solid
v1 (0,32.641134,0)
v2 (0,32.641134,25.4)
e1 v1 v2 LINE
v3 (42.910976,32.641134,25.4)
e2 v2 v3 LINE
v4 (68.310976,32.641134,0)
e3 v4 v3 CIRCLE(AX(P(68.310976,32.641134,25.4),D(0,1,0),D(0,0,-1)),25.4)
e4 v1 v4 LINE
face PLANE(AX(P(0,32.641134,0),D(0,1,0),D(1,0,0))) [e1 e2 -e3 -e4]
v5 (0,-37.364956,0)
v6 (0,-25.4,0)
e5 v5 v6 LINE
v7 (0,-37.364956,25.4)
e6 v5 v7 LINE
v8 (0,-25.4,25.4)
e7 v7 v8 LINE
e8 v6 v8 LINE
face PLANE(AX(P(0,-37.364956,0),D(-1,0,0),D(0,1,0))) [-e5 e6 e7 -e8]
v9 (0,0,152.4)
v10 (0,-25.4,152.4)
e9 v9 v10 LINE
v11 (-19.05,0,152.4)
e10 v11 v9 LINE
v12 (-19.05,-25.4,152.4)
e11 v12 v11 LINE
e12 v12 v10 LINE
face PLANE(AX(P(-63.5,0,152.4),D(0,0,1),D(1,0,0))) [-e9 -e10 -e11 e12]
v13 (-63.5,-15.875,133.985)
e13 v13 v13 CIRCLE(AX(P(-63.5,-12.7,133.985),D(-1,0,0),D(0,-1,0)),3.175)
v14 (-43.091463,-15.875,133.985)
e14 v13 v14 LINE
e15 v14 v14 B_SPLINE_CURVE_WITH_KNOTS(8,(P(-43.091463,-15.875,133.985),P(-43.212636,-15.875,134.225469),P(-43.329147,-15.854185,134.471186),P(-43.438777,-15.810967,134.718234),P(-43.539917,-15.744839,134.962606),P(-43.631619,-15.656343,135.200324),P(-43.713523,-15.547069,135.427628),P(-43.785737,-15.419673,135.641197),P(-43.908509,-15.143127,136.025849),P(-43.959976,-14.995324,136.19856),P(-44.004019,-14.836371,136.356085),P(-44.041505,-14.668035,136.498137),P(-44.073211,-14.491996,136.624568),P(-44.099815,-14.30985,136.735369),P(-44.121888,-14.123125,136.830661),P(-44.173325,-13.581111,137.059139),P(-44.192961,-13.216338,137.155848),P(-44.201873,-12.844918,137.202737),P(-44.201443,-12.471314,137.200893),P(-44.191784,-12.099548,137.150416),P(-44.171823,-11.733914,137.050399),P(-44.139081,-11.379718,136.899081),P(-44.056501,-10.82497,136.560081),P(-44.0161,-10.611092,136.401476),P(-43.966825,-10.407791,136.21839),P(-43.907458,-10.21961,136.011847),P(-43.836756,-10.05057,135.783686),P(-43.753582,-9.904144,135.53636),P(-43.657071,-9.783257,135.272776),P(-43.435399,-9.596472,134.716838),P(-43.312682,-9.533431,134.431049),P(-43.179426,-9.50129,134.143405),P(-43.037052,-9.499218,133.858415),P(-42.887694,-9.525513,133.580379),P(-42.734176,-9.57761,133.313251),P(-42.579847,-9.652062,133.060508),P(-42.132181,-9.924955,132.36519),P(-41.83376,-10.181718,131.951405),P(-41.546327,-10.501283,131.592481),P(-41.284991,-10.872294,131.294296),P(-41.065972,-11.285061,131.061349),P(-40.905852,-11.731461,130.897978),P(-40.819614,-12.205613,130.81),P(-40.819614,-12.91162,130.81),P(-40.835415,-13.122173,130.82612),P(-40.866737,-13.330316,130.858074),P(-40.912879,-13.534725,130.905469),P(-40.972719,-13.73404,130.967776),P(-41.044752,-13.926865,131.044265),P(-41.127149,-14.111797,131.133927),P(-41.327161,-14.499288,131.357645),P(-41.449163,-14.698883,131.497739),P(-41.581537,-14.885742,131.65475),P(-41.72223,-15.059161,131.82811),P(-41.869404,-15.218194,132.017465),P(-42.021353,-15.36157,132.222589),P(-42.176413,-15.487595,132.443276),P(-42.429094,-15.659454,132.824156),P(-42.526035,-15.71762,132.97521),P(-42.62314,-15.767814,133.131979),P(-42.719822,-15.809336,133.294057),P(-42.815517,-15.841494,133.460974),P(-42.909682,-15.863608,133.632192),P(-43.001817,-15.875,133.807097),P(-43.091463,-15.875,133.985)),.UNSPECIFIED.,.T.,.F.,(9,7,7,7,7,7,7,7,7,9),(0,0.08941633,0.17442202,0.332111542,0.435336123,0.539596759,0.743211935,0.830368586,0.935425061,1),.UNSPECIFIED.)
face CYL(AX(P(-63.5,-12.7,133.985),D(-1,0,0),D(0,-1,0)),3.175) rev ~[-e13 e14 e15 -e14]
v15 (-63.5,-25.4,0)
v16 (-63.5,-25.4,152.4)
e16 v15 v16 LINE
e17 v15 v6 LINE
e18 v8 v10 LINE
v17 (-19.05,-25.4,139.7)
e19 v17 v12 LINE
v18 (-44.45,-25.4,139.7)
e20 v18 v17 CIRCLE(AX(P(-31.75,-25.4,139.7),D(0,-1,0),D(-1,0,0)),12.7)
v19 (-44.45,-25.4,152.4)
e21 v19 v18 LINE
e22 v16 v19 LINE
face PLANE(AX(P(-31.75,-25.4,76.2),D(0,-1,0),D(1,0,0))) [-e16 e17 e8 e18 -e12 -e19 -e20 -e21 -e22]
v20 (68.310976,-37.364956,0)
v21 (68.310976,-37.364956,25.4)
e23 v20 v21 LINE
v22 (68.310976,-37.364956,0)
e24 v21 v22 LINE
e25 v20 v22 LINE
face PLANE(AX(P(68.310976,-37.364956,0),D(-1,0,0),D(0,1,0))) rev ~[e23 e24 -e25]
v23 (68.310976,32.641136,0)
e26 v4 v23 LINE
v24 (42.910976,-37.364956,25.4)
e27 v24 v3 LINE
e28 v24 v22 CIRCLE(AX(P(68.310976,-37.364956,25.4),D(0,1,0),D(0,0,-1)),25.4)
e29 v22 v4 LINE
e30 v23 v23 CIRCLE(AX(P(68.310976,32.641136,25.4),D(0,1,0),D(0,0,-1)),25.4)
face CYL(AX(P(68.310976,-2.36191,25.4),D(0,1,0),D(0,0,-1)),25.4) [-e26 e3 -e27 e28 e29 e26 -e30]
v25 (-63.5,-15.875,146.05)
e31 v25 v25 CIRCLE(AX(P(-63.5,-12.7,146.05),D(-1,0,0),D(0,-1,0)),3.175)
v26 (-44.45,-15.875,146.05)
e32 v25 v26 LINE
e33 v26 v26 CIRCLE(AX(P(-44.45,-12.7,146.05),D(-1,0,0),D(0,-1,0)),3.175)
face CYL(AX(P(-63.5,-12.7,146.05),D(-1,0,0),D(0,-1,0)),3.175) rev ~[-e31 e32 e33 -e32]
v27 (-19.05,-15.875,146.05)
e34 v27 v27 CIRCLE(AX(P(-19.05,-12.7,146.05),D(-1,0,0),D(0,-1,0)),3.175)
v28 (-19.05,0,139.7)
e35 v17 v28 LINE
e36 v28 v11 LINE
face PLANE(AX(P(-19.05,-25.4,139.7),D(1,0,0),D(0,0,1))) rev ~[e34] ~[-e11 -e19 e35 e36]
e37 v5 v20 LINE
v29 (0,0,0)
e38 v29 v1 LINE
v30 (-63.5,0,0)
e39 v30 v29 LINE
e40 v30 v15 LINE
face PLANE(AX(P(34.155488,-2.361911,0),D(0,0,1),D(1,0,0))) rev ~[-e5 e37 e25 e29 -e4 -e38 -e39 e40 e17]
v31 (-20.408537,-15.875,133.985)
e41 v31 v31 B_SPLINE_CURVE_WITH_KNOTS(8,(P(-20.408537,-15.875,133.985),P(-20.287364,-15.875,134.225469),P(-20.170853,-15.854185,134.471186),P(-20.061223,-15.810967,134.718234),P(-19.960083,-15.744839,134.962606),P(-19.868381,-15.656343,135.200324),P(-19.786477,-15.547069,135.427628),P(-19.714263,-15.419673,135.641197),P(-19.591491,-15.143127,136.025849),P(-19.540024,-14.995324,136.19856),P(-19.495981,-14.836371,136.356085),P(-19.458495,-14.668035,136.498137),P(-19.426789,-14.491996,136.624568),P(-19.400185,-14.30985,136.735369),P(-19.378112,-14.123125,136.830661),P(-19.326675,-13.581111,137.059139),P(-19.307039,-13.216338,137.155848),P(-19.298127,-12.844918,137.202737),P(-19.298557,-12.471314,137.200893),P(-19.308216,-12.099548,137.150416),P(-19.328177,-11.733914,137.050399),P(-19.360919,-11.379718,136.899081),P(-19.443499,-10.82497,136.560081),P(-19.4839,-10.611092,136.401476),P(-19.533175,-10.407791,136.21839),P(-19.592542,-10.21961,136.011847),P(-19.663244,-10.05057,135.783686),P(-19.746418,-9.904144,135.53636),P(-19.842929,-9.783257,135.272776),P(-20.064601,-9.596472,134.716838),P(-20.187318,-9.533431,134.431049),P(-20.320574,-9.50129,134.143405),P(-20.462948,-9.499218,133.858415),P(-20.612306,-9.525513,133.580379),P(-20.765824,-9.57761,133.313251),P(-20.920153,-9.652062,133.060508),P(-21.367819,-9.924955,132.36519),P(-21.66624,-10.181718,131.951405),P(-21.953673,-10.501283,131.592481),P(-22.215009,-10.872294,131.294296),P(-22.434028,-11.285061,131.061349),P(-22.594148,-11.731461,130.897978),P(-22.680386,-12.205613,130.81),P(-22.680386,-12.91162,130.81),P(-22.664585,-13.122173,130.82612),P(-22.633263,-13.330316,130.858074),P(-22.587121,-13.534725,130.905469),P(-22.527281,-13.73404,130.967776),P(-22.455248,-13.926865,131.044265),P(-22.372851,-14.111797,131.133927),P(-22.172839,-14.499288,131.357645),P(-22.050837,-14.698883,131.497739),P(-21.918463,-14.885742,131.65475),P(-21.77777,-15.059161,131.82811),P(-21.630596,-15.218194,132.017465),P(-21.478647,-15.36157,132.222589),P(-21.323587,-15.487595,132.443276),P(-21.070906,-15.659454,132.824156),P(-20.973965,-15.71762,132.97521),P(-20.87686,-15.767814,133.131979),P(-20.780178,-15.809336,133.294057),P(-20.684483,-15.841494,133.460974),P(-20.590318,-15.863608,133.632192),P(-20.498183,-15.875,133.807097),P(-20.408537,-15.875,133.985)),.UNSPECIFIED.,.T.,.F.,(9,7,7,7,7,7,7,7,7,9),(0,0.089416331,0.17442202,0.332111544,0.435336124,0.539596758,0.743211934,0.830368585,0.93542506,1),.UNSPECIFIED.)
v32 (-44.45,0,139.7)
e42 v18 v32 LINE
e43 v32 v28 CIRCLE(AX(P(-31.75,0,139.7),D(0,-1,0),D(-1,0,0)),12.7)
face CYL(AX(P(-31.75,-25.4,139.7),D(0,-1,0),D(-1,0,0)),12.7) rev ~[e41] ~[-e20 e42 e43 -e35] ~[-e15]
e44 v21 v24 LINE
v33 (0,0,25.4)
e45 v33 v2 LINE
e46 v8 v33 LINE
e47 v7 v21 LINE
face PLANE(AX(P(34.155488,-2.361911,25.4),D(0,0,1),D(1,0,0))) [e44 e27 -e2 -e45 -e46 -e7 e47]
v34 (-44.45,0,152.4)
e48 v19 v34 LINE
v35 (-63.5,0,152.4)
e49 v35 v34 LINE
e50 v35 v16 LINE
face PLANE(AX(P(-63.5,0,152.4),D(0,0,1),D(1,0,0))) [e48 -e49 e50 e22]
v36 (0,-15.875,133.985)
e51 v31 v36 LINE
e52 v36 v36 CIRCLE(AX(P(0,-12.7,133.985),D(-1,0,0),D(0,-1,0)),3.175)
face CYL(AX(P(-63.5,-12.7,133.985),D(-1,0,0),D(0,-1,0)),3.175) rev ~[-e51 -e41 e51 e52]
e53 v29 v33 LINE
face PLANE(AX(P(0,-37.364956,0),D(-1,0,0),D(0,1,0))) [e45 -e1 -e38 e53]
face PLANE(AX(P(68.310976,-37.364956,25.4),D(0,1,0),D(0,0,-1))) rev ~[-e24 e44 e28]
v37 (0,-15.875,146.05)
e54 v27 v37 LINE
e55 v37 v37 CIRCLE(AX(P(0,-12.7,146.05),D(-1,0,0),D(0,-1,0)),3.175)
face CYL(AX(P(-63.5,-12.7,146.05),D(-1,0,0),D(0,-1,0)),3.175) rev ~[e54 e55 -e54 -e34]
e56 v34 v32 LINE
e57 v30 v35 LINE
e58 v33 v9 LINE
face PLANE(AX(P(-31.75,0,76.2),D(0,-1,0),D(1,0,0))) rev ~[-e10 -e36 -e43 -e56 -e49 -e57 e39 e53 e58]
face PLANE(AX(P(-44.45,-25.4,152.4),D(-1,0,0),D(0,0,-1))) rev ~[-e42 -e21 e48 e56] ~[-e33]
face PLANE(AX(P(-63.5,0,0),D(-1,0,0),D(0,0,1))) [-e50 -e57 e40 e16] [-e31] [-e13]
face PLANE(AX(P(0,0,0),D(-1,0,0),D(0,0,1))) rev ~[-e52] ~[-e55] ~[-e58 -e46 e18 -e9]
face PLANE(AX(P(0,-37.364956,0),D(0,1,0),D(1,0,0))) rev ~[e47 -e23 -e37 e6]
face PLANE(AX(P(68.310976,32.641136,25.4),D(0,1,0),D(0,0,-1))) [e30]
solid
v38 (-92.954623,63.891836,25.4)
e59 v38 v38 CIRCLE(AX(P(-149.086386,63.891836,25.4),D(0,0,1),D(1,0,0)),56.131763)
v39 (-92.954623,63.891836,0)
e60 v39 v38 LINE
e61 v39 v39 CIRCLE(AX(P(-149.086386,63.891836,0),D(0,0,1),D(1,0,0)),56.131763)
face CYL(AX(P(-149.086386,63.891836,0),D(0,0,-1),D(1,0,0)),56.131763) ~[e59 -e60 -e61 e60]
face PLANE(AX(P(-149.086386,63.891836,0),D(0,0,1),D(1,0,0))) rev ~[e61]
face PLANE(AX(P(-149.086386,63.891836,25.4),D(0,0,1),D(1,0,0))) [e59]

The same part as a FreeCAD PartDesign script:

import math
import FreeCAD as App
import Part
import Sketcher
from FreeCAD import Vector
Q = App.Units.Quantity

doc = App.newDocument("Part")
body = doc.addObject("PartDesign::Body", "Body")

# Sketch on XZ plane
sketch1 = body.newObject("Sketcher::SketchObject", "Sketch")
sketch1.AttachmentSupport = (doc.getObject("XZ_Plane"), [""])
sketch1.MapMode = "FlatFace"
sketch1.addGeometry(Part.LineSegment(Vector(-64, 152, 0), Vector(-64, 0, 0)), False)
sketch1.addGeometry(Part.LineSegment(Vector(-64, 0, 0), Vector(0, 0, 0)), False)
sketch1.addGeometry(Part.LineSegment(Vector(0, 0, 0), Vector(0, 152, 0)), False)
sketch1.addGeometry(Part.LineSegment(Vector(0, 152, 0), Vector(-64, 152, 0)), False)
sketch1.addConstraint(Sketcher.Constraint("Coincident", 0, 2, 1, 1))
sketch1.addConstraint(Sketcher.Constraint("Coincident", 1, 2, 2, 1))
sketch1.addConstraint(Sketcher.Constraint("Coincident", 2, 2, 3, 1))
sketch1.addConstraint(Sketcher.Constraint("Coincident", 3, 2, 0, 1))
sketch1.addConstraint(Sketcher.Constraint("Vertical", 0))
sketch1.addConstraint(Sketcher.Constraint("Horizontal", 1))
sketch1.addConstraint(Sketcher.Constraint("Vertical", 2))
sketch1.addConstraint(Sketcher.Constraint("Horizontal", 3))
sketch1.addConstraint(Sketcher.Constraint("Coincident", 1, 2, -1, 1))
sketch1.addConstraint(Sketcher.Constraint("DistanceY", 0, 2, 0, 1, Q("6 in")))
sketch1.addConstraint(Sketcher.Constraint("DistanceX", 1, 1, 1, 2, Q("2.5 in")))
pad1 = body.newObject("PartDesign::Pad", "Pad")
pad1.Profile = sketch1
pad1.Length = Q("1 in")

# Sketch on XZ plane
sketch2 = body.newObject("Sketcher::SketchObject", "Sketch001")
sketch2.AttachmentSupport = (doc.getObject("XZ_Plane"), [""])
sketch2.MapMode = "FlatFace"
sketch2.AttachmentOffset = App.Placement(Vector(0, 0, 1 * 25.4), App.Rotation())
sketch2.addGeometry(Part.ArcOfCircle(Part.Circle(Vector(-32, 140, 0), Vector(0, 0, 1), 13), math.radians(180), math.radians(360)), False)
sketch2.addGeometry(Part.LineSegment(Vector(-19, 140, 0), Vector(-19, 152, 0)), False)
sketch2.addGeometry(Part.LineSegment(Vector(-19, 152, 0), Vector(-44, 152, 0)), False)
sketch2.addGeometry(Part.LineSegment(Vector(-44, 152, 0), Vector(-44, 140, 0)), False)
sketch2.addConstraint(Sketcher.Constraint("Tangent", 0, 2, 1, 1))
sketch2.addConstraint(Sketcher.Constraint("Coincident", 1, 2, 2, 1))
sketch2.addConstraint(Sketcher.Constraint("Coincident", 2, 2, 3, 1))
sketch2.addConstraint(Sketcher.Constraint("Tangent", 3, 2, 0, 1))
sketch2.addConstraint(Sketcher.Constraint("Vertical", 1))
sketch2.addConstraint(Sketcher.Constraint("Horizontal", 2))
sketch2.addConstraint(Sketcher.Constraint("Vertical", 3))
sketch2.addConstraint(Sketcher.Constraint("Radius", 0, Q("0.5 in")))
sketch2.addConstraint(Sketcher.Constraint("DistanceY", 1, 1, 1, 2, Q("0.5 in")))
sketch2.addConstraint(Sketcher.Constraint("DistanceY", -1, 1, 1, 2, Q("6 in")))
sketch2.addConstraint(Sketcher.Constraint("DistanceX", 0, 3, -1, 1, Q("1.25 in")))
pocket1 = body.newObject("PartDesign::Pocket", "Pocket")
pocket1.Profile = sketch2
pocket1.Length = Q("1 in")

# Sketch on YZ plane
sketch3 = body.newObject("Sketcher::SketchObject", "Sketch002")
sketch3.AttachmentSupport = (doc.getObject("YZ_Plane"), [""])
sketch3.MapMode = "FlatFace"
sketch3.AttachmentOffset = App.Placement(Vector(0, 0, -2.5 * 25.4), App.Rotation())
sketch3.addGeometry(Part.Circle(Vector(-12.7, 134, 0), Vector(0, 0, 1), 3.2), False)
sketch3.addGeometry(Part.Circle(Vector(-12.7, 146.1, 0), Vector(0, 0, 1), 3.2), False)
sketch3.addConstraint(Sketcher.Constraint("Equal", 0, 1))
sketch3.addConstraint(Sketcher.Constraint("Vertical", 0, 3, 1, 3))
sketch3.addConstraint(Sketcher.Constraint("Diameter", 0, Q("0.25 in")))
sketch3.addConstraint(Sketcher.Constraint("DistanceX", 0, 3, -1, 1, Q("0.5 in")))
sketch3.addConstraint(Sketcher.Constraint("DistanceY", -1, 1, 1, 3, Q("5.75 in")))
sketch3.addConstraint(Sketcher.Constraint("DistanceY", -1, 1, 0, 3, Q("5.275 in")))
pocket2 = body.newObject("PartDesign::Pocket", "Pocket001")
pocket2.Profile = sketch3
pocket2.Type = "ThroughAll"
pocket2.Reversed = True

# Sketch on XY plane
sketch4 = body.newObject("Sketcher::SketchObject", "Sketch003")
sketch4.AttachmentSupport = (doc.getObject("XY_Plane"), [""])
sketch4.MapMode = "FlatFace"
sketch4.addGeometry(Part.LineSegment(Vector(0, 33, 0), Vector(0, -37, 0)), False)
sketch4.addGeometry(Part.LineSegment(Vector(0, -37, 0), Vector(68, -37, 0)), False)
sketch4.addGeometry(Part.LineSegment(Vector(68, -37, 0), Vector(68, 33, 0)), False)
sketch4.addGeometry(Part.LineSegment(Vector(68, 33, 0), Vector(0, 33, 0)), False)
sketch4.addConstraint(Sketcher.Constraint("Coincident", 0, 2, 1, 1))
sketch4.addConstraint(Sketcher.Constraint("Coincident", 1, 2, 2, 1))
sketch4.addConstraint(Sketcher.Constraint("Coincident", 2, 2, 3, 1))
sketch4.addConstraint(Sketcher.Constraint("Coincident", 3, 2, 0, 1))
sketch4.addConstraint(Sketcher.Constraint("Vertical", 0))
sketch4.addConstraint(Sketcher.Constraint("Horizontal", 1))
sketch4.addConstraint(Sketcher.Constraint("Vertical", 2))
sketch4.addConstraint(Sketcher.Constraint("Horizontal", 3))
sketch4.addConstraint(Sketcher.Constraint("PointOnObject", 0, 2, -2))
sketch4.addConstraint(Sketcher.Constraint("DistanceY", 0, 2, 0, 1, Q("70.006091 mm")))
sketch4.addConstraint(Sketcher.Constraint("DistanceX", 1, 1, 1, 2, Q("68.310976 mm")))
sketch4.addConstraint(Sketcher.Constraint("DistanceY", 0, 2, -1, 1, Q("37.364956 mm")))
pad2 = body.newObject("PartDesign::Pad", "Pad001")
pad2.Profile = sketch4
pad2.Length = Q("1 in")

# Sketch on YZ plane
sketch5 = body.newObject("Sketcher::SketchObject", "Sketch004")
sketch5.AttachmentSupport = (doc.getObject("YZ_Plane"), [""])
sketch5.MapMode = "FlatFace"
sketch5.AttachmentOffset = App.Placement(Vector(0, 0, 68.310976), App.Rotation())
sketch5.addGeometry(Part.LineSegment(Vector(-37, 25, 0), Vector(-37, 0, 0)), False)
sketch5.addGeometry(Part.LineSegment(Vector(-37, 0, 0), Vector(33, 0, 0)), False)
sketch5.addGeometry(Part.LineSegment(Vector(33, 0, 0), Vector(33, 25, 0)), False)
sketch5.addGeometry(Part.LineSegment(Vector(33, 25, 0), Vector(-37, 25, 0)), False)
sketch5.addGeometry(Part.LineSegment(Vector(-37, 25, 0), Vector(33, 25, 0)), True)  # axis
sketch5.addConstraint(Sketcher.Constraint("Coincident", 0, 2, 1, 1))
sketch5.addConstraint(Sketcher.Constraint("Coincident", 1, 2, 2, 1))
sketch5.addConstraint(Sketcher.Constraint("Coincident", 2, 2, 3, 1))
sketch5.addConstraint(Sketcher.Constraint("Coincident", 3, 2, 0, 1))
sketch5.addConstraint(Sketcher.Constraint("Vertical", 0))
sketch5.addConstraint(Sketcher.Constraint("Horizontal", 1))
sketch5.addConstraint(Sketcher.Constraint("Vertical", 2))
sketch5.addConstraint(Sketcher.Constraint("Horizontal", 3))
sketch5.addConstraint(Sketcher.Constraint("Horizontal", 4))
sketch5.addConstraint(Sketcher.Constraint("Coincident", 4, 1, 3, 2))
sketch5.addConstraint(Sketcher.Constraint("PointOnObject", 0, 2, -1))
sketch5.addConstraint(Sketcher.Constraint("Vertical", 1, 2, 4, 2))
sketch5.addConstraint(Sketcher.Constraint("DistanceY", 0, 2, 0, 1, Q("1 in")))
sketch5.addConstraint(Sketcher.Constraint("DistanceX", 1, 1, 1, 2, Q("70.006092 mm")))
sketch5.addConstraint(Sketcher.Constraint("DistanceX", 0, 2, -1, 1, Q("37.364956 mm")))
revolution = body.newObject("PartDesign::Revolution", "Revolution")
revolution.Profile = sketch5
revolution.ReferenceAxis = (sketch5, ["Axis0"])
revolution.Angle = 360
body2 = doc.addObject("PartDesign::Body", "Body001")

# Sketch on XY plane
sketch6 = body2.newObject("Sketcher::SketchObject", "Sketch005")
sketch6.AttachmentSupport = (doc.getObject("XY_Plane001"), [""])
sketch6.MapMode = "FlatFace"
sketch6.addGeometry(Part.Circle(Vector(-149, 64, 0), Vector(0, 0, 1), 56), False)
sketch6.addConstraint(Sketcher.Constraint("Diameter", 0, Q("112.263526 mm")))
sketch6.addConstraint(Sketcher.Constraint("DistanceX", 0, 3, -1, 1, Q("149.086386 mm")))
sketch6.addConstraint(Sketcher.Constraint("DistanceY", -1, 1, 0, 3, Q("63.891836 mm")))
pad3 = body2.newObject("PartDesign::Pad", "Pad002")
pad3.Profile = sketch6
pad3.Length = Q("1 in")

doc.recompute()
